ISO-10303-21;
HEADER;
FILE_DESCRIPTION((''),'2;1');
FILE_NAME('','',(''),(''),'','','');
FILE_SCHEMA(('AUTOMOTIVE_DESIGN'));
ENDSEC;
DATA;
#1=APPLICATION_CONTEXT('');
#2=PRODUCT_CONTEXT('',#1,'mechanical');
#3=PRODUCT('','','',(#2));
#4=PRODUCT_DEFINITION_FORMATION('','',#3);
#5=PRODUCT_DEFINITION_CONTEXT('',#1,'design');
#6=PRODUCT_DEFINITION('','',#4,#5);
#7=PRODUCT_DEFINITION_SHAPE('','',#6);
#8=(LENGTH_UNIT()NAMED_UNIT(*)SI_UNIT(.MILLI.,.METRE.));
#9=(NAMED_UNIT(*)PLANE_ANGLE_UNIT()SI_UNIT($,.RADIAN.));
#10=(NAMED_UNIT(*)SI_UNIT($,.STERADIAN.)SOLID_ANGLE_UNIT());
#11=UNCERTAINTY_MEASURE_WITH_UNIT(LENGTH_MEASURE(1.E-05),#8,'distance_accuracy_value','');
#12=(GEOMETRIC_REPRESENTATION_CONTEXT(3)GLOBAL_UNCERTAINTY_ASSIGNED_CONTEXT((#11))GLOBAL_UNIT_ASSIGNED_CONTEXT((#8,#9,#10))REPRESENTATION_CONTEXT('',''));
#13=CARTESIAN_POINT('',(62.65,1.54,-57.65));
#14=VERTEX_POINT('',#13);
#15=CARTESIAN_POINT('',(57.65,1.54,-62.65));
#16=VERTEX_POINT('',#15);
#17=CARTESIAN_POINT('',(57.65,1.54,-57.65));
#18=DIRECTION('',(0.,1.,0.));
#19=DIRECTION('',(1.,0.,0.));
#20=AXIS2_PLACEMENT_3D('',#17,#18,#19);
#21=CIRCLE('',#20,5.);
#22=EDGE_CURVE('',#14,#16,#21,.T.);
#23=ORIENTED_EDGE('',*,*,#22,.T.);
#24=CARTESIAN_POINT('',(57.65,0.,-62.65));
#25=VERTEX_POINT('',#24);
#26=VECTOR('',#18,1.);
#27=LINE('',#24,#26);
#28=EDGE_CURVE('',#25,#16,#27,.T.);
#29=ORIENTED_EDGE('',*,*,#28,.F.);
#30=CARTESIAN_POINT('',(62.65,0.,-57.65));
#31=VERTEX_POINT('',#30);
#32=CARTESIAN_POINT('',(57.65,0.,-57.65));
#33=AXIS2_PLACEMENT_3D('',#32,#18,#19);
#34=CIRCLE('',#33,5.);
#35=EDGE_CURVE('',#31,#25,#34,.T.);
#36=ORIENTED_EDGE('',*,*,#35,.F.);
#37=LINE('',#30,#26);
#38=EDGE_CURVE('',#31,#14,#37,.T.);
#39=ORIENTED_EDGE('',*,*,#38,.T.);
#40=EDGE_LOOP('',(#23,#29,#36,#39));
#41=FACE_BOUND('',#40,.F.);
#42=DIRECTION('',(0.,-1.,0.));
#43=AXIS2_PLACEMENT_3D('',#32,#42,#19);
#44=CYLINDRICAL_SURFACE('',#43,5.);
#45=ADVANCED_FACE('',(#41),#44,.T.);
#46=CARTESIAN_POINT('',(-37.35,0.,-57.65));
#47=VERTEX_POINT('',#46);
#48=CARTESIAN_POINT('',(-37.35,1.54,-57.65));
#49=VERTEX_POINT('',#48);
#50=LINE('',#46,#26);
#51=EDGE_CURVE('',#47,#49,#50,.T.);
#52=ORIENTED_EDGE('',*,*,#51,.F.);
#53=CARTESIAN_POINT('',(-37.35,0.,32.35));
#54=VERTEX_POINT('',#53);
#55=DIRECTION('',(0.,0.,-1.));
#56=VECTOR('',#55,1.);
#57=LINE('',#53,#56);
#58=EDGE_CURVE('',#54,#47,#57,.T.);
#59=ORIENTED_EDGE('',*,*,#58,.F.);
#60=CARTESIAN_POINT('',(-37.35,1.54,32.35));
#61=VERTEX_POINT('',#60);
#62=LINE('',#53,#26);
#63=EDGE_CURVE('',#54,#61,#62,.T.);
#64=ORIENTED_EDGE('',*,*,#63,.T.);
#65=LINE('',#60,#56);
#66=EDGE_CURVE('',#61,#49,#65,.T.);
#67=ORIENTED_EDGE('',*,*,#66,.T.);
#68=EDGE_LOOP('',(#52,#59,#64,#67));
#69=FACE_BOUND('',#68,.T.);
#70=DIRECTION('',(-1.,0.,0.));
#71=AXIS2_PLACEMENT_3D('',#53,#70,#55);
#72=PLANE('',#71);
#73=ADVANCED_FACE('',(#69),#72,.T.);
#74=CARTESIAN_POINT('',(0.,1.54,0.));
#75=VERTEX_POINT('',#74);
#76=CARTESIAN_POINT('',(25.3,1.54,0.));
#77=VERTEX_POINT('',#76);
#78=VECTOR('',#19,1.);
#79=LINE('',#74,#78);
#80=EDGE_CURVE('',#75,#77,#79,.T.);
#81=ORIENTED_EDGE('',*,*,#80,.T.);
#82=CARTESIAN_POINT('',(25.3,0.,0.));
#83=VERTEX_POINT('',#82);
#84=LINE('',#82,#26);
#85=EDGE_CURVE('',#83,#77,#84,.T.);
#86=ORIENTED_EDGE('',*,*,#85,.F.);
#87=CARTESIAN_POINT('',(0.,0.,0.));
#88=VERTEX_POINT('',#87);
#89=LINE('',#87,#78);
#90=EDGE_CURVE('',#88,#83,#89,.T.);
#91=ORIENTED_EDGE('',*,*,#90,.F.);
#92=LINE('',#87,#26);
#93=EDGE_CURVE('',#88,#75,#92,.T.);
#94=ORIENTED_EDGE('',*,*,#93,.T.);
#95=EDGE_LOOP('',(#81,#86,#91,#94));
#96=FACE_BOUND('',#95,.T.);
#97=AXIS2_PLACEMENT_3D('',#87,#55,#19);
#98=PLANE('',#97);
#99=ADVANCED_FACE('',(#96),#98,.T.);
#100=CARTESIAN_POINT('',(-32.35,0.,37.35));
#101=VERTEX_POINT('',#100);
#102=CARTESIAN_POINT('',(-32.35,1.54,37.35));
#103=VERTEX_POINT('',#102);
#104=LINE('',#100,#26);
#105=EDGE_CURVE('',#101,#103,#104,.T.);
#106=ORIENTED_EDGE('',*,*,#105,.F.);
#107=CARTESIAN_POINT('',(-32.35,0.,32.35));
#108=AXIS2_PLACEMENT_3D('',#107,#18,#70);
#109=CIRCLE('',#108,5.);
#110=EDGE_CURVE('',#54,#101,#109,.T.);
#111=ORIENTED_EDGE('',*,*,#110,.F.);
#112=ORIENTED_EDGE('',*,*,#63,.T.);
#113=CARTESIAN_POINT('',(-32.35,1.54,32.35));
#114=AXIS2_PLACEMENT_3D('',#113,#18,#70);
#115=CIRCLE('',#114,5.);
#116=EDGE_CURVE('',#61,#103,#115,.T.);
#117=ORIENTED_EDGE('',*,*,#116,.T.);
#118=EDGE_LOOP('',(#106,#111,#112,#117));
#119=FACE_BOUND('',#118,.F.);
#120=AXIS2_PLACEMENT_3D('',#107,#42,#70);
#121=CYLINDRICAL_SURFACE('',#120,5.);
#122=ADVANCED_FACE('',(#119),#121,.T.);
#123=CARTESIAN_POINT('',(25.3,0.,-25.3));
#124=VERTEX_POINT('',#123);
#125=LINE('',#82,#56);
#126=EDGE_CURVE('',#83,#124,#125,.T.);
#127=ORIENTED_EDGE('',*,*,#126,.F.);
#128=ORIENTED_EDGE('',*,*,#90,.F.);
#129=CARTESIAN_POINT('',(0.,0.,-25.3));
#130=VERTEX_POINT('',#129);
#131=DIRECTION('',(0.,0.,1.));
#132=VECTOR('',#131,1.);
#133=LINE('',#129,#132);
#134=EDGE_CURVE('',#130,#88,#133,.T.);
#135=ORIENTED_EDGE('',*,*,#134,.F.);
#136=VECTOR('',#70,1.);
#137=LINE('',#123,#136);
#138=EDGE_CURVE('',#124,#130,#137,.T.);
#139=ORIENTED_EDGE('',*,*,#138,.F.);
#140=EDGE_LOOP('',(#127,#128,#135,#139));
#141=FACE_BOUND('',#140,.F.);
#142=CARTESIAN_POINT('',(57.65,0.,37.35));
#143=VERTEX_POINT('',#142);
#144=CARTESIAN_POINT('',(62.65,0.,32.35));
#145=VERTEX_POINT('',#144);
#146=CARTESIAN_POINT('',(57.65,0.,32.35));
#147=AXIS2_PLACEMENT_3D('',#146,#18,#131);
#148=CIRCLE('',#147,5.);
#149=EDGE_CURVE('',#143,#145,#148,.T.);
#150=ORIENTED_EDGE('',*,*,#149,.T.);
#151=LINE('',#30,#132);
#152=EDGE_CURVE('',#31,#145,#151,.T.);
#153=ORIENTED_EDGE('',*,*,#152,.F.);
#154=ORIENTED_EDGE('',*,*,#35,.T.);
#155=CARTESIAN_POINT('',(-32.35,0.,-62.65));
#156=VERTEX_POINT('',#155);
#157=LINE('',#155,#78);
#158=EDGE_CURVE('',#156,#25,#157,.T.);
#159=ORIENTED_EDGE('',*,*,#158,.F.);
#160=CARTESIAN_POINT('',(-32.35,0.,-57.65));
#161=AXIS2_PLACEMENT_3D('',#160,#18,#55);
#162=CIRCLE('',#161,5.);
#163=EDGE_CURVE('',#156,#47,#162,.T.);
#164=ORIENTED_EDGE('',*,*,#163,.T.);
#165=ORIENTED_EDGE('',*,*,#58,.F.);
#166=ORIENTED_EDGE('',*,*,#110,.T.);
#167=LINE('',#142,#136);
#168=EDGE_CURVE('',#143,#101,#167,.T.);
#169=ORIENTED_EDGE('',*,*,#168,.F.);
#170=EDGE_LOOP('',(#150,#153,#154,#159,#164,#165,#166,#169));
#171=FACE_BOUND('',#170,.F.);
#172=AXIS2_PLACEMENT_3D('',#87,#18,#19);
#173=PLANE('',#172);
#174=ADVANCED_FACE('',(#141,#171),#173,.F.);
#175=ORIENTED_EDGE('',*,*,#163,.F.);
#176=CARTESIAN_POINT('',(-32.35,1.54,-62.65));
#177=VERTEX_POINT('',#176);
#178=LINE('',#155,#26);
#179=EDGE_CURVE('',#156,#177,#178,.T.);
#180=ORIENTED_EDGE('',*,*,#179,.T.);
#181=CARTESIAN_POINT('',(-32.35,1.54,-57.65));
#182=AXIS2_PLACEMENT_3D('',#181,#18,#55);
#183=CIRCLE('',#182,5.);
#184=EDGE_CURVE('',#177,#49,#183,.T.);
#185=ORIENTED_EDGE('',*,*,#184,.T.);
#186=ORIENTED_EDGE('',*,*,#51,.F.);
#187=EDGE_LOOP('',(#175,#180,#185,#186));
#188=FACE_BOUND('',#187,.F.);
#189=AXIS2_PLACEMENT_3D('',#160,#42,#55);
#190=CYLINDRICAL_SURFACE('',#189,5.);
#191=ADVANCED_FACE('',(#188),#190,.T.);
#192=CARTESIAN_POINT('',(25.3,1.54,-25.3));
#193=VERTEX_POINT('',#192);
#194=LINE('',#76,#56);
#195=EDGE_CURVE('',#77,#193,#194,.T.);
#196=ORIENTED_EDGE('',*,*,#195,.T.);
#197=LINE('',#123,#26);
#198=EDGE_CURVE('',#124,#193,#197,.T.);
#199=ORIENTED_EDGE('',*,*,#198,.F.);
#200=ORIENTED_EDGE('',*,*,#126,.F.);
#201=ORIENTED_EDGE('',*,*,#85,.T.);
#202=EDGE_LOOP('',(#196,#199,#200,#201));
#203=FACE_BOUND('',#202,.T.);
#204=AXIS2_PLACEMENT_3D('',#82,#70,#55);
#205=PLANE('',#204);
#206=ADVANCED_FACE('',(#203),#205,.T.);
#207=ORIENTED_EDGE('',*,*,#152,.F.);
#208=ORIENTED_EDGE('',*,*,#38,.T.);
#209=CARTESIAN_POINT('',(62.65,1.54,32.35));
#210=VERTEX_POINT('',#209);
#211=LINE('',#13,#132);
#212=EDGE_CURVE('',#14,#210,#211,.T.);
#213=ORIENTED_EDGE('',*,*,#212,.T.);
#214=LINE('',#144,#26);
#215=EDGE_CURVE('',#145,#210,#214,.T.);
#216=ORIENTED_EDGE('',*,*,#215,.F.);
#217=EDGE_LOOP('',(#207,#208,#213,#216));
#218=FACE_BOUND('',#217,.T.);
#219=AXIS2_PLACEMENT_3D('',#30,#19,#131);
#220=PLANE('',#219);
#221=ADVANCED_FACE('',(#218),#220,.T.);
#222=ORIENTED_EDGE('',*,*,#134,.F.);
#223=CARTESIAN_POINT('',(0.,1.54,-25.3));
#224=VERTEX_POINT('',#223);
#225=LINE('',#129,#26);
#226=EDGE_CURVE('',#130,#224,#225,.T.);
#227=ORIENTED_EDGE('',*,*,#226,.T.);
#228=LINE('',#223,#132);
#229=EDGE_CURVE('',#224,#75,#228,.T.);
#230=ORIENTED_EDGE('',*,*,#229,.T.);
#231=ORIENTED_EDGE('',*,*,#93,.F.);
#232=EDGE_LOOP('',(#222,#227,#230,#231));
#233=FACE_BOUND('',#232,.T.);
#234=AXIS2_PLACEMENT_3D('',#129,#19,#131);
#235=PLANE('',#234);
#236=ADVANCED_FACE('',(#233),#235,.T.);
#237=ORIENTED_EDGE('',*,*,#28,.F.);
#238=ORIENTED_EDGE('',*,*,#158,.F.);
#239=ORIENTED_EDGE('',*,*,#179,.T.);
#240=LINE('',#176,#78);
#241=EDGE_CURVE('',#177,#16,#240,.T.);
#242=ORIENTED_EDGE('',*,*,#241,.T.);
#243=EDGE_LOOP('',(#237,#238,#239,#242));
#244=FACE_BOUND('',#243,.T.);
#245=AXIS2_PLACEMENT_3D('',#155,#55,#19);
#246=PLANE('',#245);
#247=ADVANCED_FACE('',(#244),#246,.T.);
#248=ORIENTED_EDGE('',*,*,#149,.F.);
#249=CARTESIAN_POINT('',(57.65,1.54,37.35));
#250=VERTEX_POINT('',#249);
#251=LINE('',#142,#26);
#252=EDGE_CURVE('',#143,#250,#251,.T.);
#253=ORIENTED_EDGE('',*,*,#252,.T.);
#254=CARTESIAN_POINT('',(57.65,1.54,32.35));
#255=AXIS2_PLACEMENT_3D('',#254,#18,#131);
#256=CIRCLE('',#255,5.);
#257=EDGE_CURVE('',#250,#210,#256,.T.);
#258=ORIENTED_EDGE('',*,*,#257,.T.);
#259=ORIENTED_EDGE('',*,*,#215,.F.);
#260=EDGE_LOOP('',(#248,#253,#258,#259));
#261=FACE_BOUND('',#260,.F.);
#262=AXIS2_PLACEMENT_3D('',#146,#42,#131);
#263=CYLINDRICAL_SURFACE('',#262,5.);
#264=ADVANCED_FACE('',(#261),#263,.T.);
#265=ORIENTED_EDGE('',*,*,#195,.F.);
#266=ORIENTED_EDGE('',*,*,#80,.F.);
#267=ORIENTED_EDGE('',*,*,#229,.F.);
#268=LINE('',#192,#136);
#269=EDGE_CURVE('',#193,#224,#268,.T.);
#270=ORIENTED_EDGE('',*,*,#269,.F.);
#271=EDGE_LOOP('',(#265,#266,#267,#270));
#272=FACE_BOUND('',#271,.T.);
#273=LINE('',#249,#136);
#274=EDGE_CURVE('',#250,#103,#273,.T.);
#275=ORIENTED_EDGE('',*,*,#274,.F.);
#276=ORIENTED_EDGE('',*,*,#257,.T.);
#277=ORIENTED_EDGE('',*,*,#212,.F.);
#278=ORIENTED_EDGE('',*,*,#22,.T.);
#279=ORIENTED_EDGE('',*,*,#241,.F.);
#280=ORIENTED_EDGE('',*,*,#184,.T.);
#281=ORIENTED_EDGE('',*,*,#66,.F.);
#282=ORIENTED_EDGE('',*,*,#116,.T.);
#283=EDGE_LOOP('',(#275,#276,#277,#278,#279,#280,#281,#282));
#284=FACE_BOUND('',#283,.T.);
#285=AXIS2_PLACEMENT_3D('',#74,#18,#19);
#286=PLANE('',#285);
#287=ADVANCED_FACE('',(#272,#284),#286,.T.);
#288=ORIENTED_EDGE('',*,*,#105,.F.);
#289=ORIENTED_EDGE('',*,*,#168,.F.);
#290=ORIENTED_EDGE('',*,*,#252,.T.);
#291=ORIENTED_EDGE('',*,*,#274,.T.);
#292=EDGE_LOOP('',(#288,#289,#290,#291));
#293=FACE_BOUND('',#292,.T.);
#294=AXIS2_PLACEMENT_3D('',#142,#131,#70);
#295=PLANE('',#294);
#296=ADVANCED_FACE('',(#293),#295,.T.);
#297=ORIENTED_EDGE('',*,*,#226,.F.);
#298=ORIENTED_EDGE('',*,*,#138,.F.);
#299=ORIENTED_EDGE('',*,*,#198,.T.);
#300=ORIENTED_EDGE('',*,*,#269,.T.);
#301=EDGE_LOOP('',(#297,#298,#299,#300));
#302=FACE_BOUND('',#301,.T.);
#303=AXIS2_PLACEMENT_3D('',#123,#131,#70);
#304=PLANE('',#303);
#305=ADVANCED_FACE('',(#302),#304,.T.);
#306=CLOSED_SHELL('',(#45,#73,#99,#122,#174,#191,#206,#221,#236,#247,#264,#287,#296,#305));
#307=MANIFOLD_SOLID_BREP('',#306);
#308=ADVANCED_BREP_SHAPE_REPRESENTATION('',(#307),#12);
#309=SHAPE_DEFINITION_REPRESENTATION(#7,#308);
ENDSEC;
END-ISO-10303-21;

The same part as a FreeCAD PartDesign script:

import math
import FreeCAD as App
import Part
import Sketcher
from FreeCAD import Vector
Q = App.Units.Quantity

doc = App.newDocument("Part")
params = doc.addObject("Spreadsheet::Sheet", "Params")
for row, (alias, value) in enumerate([
    ("sketch1_radius", "5 mm"),
    ("sketch1_width", "25.3 mm"),
    ("sketch1_width2", "90 mm"),
    ("pad1_length", "1.54 mm"),
], start=1):
    params.set(f"A{row}", alias)
    params.set(f"B{row}", "=" + value)
    params.setAlias(f"B{row}", alias)

body = doc.addObject("PartDesign::Body", "Body")

# Sketch on XZ plane
sketch1 = doc.addObject("Sketcher::SketchObject", "Sketch")
body.addObject(sketch1)
sketch1.AttachmentSupport = (doc.XZ_Plane, [""])
sketch1.MapMode = "FlatFace"
sketch1.addGeometry(Part.LineSegment(Vector(58, -63, 0), Vector(-32, -63, 0)), False)
sketch1.addGeometry(Part.ArcOfCircle(Part.Circle(Vector(-32, -58, 0), Vector(0, 0, 1), 5), math.radians(180), math.radians(270)), False)
sketch1.addGeometry(Part.LineSegment(Vector(-37, -58, 0), Vector(-37, 32, 0)), False)
sketch1.addGeometry(Part.ArcOfCircle(Part.Circle(Vector(-32, 32, 0), Vector(0, 0, 1), 5), math.radians(90), math.radians(180)), False)
sketch1.addGeometry(Part.LineSegment(Vector(-32, 37, 0), Vector(58, 37, 0)), False)
sketch1.addGeometry(Part.ArcOfCircle(Part.Circle(Vector(58, 32, 0), Vector(0, 0, 1), 5), math.radians(0), math.radians(90)), False)
sketch1.addGeometry(Part.LineSegment(Vector(63, 32, 0), Vector(63, -58, 0)), False)
sketch1.addGeometry(Part.ArcOfCircle(Part.Circle(Vector(58, -58, 0), Vector(0, 0, 1), 5), math.radians(-90), math.radians(0)), False)
sketch1.addGeometry(Part.LineSegment(Vector(25, 0, 0), Vector(0, 0, 0)), False)
sketch1.addGeometry(Part.LineSegment(Vector(0, 0, 0), Vector(0, -25, 0)), False)
sketch1.addGeometry(Part.LineSegment(Vector(0, -25, 0), Vector(25, -25, 0)), False)
sketch1.addGeometry(Part.LineSegment(Vector(25, -25, 0), Vector(25, 0, 0)), False)
sketch1.addConstraint(Sketcher.Constraint("Tangent", 0, 2, 1, 2))
sketch1.addConstraint(Sketcher.Constraint("Tangent", 1, 1, 2, 1))
sketch1.addConstraint(Sketcher.Constraint("Tangent", 2, 2, 3, 2))
sketch1.addConstraint(Sketcher.Constraint("Tangent", 3, 1, 4, 1))
sketch1.addConstraint(Sketcher.Constraint("Tangent", 4, 2, 5, 2))
sketch1.addConstraint(Sketcher.Constraint("Tangent", 5, 1, 6, 1))
sketch1.addConstraint(Sketcher.Constraint("Tangent", 6, 2, 7, 2))
sketch1.addConstraint(Sketcher.Constraint("Tangent", 7, 1, 0, 1))
sketch1.addConstraint(Sketcher.Constraint("Coincident", 8, 2, 9, 1))
sketch1.addConstraint(Sketcher.Constraint("Coincident", 9, 2, 10, 1))
sketch1.addConstraint(Sketcher.Constraint("Coincident", 10, 2, 11, 1))
sketch1.addConstraint(Sketcher.Constraint("Coincident", 11, 2, 8, 1))
sketch1.addConstraint(Sketcher.Constraint("Horizontal", 0))
sketch1.addConstraint(Sketcher.Constraint("Vertical", 2))
sketch1.addConstraint(Sketcher.Constraint("Horizontal", 4))
sketch1.addConstraint(Sketcher.Constraint("Vertical", 6))
sketch1.addConstraint(Sketcher.Constraint("Horizontal", 8))
sketch1.addConstraint(Sketcher.Constraint("Vertical", 9))
sketch1.addConstraint(Sketcher.Constraint("Horizontal", 10))
sketch1.addConstraint(Sketcher.Constraint("Vertical", 11))
sketch1.addConstraint(Sketcher.Constraint("Coincident", 8, 2, -1, 1))
sketch1.addConstraint(Sketcher.Constraint("Equal", 1, 3))
sketch1.addConstraint(Sketcher.Constraint("Equal", 3, 5))
sketch1.addConstraint(Sketcher.Constraint("Equal", 5, 7))
sketch1.addConstraint(Sketcher.Constraint("Equal", 4, 2))
sketch1.addConstraint(Sketcher.Constraint("Equal", 10, 9))
sketch1.addConstraint(Sketcher.Constraint("Radius", 1, Q("5 mm")))
sketch1.addConstraint(Sketcher.Constraint("DistanceX", 8, 2, 8, 1, Q("25.3 mm")))
sketch1.addConstraint(Sketcher.Constraint("DistanceX", 0, 2, 0, 1, Q("90 mm")))
sketch1.addConstraint(Sketcher.Constraint("DistanceX", 1, 1, -1, 1, Q("37.35 mm")))
sketch1.addConstraint(Sketcher.Constraint("DistanceY", -1, 1, 3, 1, Q("37.35 mm")))
sketch1.setExpression("Constraints[26]", "Params.sketch1_radius")
sketch1.setExpression("Constraints[27]", "Params.sketch1_width")
sketch1.setExpression("Constraints[28]", "Params.sketch1_width2")
pad1 = doc.addObject("PartDesign::Pad", "Pad")
body.addObject(pad1)
pad1.Profile = sketch1
pad1.setExpression("Length", "Params.pad1_length")
pad1.Reversed = True

doc.recompute()
